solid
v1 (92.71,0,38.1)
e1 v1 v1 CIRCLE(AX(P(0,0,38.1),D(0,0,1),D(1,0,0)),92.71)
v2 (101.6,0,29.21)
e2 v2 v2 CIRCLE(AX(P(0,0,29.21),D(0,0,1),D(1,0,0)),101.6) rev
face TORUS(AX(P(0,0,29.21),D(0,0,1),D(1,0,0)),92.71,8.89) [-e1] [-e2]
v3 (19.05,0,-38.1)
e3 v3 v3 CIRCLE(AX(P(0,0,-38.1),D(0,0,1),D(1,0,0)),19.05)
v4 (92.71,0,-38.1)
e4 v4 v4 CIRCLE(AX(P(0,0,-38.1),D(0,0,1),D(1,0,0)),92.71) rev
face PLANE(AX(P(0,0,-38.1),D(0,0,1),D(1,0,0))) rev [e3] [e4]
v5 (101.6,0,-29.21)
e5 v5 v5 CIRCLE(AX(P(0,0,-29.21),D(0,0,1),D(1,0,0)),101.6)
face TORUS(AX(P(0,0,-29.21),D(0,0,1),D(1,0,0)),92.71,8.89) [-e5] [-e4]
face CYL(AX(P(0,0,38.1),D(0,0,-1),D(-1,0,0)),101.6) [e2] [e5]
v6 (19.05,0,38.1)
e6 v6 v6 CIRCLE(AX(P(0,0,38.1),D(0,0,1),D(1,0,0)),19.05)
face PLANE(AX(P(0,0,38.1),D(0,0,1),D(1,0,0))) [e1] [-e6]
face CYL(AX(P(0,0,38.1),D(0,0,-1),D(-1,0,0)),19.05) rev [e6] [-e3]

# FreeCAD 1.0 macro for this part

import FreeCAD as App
import Part
import Sketcher
Q = App.Units.Quantity


def edges_at(feature, points):
    """Names of the edges that pass closest to the given points."""
    edges = feature.Shape.Edges
    near = lambda p: min(range(len(edges)), key=lambda i: edges[i].distToShape(Part.Vertex(*p))[0])
    return sorted({f"Edge{near(p) + 1}" for p in points})

doc = App.newDocument("Part")
body = doc.addObject("PartDesign::Body", "Body")

sketch1 = body.newObject("Sketcher::SketchObject", "Sketch")
sketch1.AttachmentSupport = (doc.getObject("XY_Plane"), [""])
sketch1.MapMode = "FlatFace"
sketch1.addGeometry(Part.Circle(App.Vector(0, 0, 0), App.Vector(0, 0, 1), 102), False)
sketch1.addGeometry(Part.Circle(App.Vector(0, 0, 0), App.Vector(0, 0, 1), 19), False)
sketch1.addConstraint(Sketcher.Constraint("Coincident", 0, 3, -1, 1))
sketch1.addConstraint(Sketcher.Constraint("Coincident", 1, 3, -1, 1))
sketch1.addConstraint(Sketcher.Constraint("Diameter", 0, Q("8 in")))
sketch1.addConstraint(Sketcher.Constraint("Diameter", 1, Q("1.5 in")))
pad1 = body.newObject("PartDesign::Pad", "Pad")
pad1.Profile = sketch1
pad1.Length = Q("3 in")
pad1.Midplane = True
doc.recompute()

fillet = body.newObject("PartDesign::Fillet", "Fillet")
fillet.Base = (pad1, edges_at(pad1, [(-101.6, 0, -38.1), (-101.6, 0, 38.1)]))
fillet.Radius = Q("0.35 in")

doc.recompute()
